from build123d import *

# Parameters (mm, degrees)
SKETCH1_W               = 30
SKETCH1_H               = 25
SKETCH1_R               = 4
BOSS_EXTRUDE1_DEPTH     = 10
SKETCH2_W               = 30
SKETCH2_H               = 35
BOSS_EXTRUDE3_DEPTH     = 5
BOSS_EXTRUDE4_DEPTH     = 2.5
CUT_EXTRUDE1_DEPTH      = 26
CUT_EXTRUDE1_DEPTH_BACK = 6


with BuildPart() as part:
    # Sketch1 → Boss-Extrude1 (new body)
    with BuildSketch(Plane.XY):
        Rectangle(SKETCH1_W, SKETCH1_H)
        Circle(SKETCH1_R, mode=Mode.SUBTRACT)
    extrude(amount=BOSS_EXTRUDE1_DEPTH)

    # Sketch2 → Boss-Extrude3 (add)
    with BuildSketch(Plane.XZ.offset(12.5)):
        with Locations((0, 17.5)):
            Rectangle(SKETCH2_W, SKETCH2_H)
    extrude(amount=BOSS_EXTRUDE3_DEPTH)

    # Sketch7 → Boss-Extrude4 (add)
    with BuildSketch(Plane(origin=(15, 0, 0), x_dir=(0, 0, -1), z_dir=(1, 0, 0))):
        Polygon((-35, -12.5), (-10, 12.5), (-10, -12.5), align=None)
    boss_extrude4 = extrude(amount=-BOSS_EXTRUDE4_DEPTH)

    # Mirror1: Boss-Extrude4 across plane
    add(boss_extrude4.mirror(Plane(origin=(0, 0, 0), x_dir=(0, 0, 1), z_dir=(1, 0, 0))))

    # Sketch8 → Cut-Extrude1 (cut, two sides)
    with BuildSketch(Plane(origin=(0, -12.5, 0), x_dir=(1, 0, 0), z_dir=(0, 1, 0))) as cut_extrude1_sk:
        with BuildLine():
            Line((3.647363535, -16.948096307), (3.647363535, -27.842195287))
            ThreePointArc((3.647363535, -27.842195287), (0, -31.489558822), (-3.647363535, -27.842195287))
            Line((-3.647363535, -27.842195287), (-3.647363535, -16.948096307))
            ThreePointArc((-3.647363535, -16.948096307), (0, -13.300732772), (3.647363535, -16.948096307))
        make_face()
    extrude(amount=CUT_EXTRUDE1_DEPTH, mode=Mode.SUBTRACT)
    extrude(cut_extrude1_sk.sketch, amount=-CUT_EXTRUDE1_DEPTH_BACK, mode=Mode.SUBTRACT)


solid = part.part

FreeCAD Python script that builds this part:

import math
import FreeCAD as App
import Part
import Sketcher

V = App.Vector
Q = App.Units.Quantity

doc = App.newDocument("Part")
body = doc.addObject("PartDesign::Body", "Body")

# Sketch on XY plane
sketch1 = body.newObject("Sketcher::SketchObject", "Sketch")
sketch1.AttachmentSupport = (doc.getObject("XY_Plane"), [""])
sketch1.MapMode = "FlatFace"
sketch1.addGeometry([
    Part.LineSegment(V(-15, 12.5, 0), V(-15, -12.5, 0)),  # 0
    Part.LineSegment(V(-15, -12.5, 0), V(15, -12.5, 0)),  # 1
    Part.LineSegment(V(15, -12.5, 0), V(15, 12.5, 0)),  # 2
    Part.LineSegment(V(15, 12.5, 0), V(-15, 12.5, 0)),  # 3
    Part.Circle(V(0, 0, 0), V(0, 0, 1), 4),  # 4
], False)
sketch1.addConstraint([
    Sketcher.Constraint("Coincident", 0, 2, 1, 1),
    Sketcher.Constraint("Coincident", 1, 2, 2, 1),
    Sketcher.Constraint("Coincident", 2, 2, 3, 1),
    Sketcher.Constraint("Coincident", 3, 2, 0, 1),
    Sketcher.Constraint("Vertical", 0),
    Sketcher.Constraint("Horizontal", 1),
    Sketcher.Constraint("Vertical", 2),
    Sketcher.Constraint("Horizontal", 3),
    Sketcher.Constraint("Coincident", 4, 3, -1, 1),
    Sketcher.Constraint("Symmetric", 0, 2, 2, 2, -1, 1),
    Sketcher.Constraint("Diameter", 4, Q("8 mm")),
    Sketcher.Constraint("DistanceX", 1, 1, 1, 2, Q("30 mm")),
    Sketcher.Constraint("DistanceY", 0, 2, 0, 1, Q("25 mm")),
])
pad1 = body.newObject("PartDesign::Pad", "Pad")
pad1.Profile = sketch1
pad1.Length = 10

# Sketch on XZ plane
sketch2 = body.newObject("Sketcher::SketchObject", "Sketch001")
sketch2.AttachmentSupport = (doc.getObject("XZ_Plane"), [""])
sketch2.MapMode = "FlatFace"
sketch2.AttachmentOffset = App.Placement(V(0, 0, 12.5), App.Rotation())
sketch2.addGeometry([
    Part.LineSegment(V(-15, 35, 0), V(-15, 0, 0)),
    Part.LineSegment(V(-15, 0, 0), V(15, 0, 0)),
    Part.LineSegment(V(15, 0, 0), V(15, 35, 0)),
    Part.LineSegment(V(15, 35, 0), V(-15, 35, 0)),
], False)
sketch2.addConstraint([
    Sketcher.Constraint("Coincident", 0, 2, 1, 1),
    Sketcher.Constraint("Coincident", 1, 2, 2, 1),
    Sketcher.Constraint("Coincident", 2, 2, 3, 1),
    Sketcher.Constraint("Coincident", 3, 2, 0, 1),
    Sketcher.Constraint("Vertical", 0),
    Sketcher.Constraint("Horizontal", 1),
    Sketcher.Constraint("Vertical", 2),
    Sketcher.Constraint("Horizontal", 3),
    Sketcher.Constraint("Symmetric", 0, 2, 1, 2, -1, 1),
    Sketcher.Constraint("DistanceX", 1, 1, 1, 2, Q("30 mm")),
    Sketcher.Constraint("DistanceY", 0, 2, 0, 1, Q("35 mm")),
])
pad2 = body.newObject("PartDesign::Pad", "Pad001")
pad2.Profile = sketch2
pad2.Length = 5

# Sketch on YZ plane
sketch3 = body.newObject("Sketcher::SketchObject", "Sketch002")
sketch3.AttachmentSupport = (doc.getObject("YZ_Plane"), [""])
sketch3.MapMode = "FlatFace"
sketch3.AttachmentOffset = App.Placement(V(0, 0, 15), App.Rotation())
sketch3.addGeometry([
    Part.LineSegment(V(12, 10, 0), V(-12, 35, 0)),
    Part.LineSegment(V(-12, 35, 0), V(-12, 10, 0)),
    Part.LineSegment(V(-12, 10, 0), V(12, 10, 0)),
], False)
sketch3.addConstraint([
    Sketcher.Constraint("Coincident", 0, 2, 1, 1),
    Sketcher.Constraint("Coincident", 1, 2, 2, 1),
    Sketcher.Constraint("Coincident", 2, 2, 0, 1),
    Sketcher.Constraint("Vertical", 1),
    Sketcher.Constraint("Horizontal", 2),
    Sketcher.Constraint("Equal", 2, 1),
    Sketcher.Constraint("DistanceX", 2, 1, 2, 2, Q("25 mm")),
    Sketcher.Constraint("DistanceY", -1, 1, 0, 2, Q("35 mm")),
    Sketcher.Constraint("DistanceX", 0, 2, -1, 1, Q("12.5 mm")),
])
pad3 = body.newObject("PartDesign::Pad", "Pad002")
pad3.Profile = sketch3
pad3.Length = 2.5
pad3.Reversed = True
doc.recompute()

mirrored = body.newObject("PartDesign::Mirrored", "Mirrored")
mirrored.Originals = [pad3]
mirrored.MirrorPlane = (doc.getObject("YZ_Plane"), [""])
body.Tip = mirrored

# Sketch on XZ plane
sketch4 = body.newObject("Sketcher::SketchObject", "Sketch003")
sketch4.AttachmentSupport = (doc.getObject("XZ_Plane"), [""])
sketch4.MapMode = "FlatFace"
sketch4.AttachmentOffset = App.Placement(V(0, 0, 12.5), App.Rotation())
sketch4.addGeometry([
    Part.LineSegment(V(3.6, 27.8, 0), V(3.6, 16.9, 0)),
    Part.ArcOfCircle(Part.Circle(V(0, 16.9, 0), V(0, 0, 1), 3.6), math.radians(180), math.radians(360)),
    Part.LineSegment(V(-3.6, 16.9, 0), V(-3.6, 27.8, 0)),
    Part.ArcOfCircle(Part.Circle(V(0, 27.8, 0), V(0, 0, 1), 3.6), math.radians(0), math.radians(180)),
], False)
sketch4.addConstraint([
    Sketcher.Constraint("Tangent", 0, 2, 1, 2),
    Sketcher.Constraint("Tangent", 1, 1, 2, 1),
    Sketcher.Constraint("Tangent", 2, 2, 3, 2),
    Sketcher.Constraint("Tangent", 3, 1, 0, 1),
    Sketcher.Constraint("Vertical", 0),
    Sketcher.Constraint("Vertical", 2),
    Sketcher.Constraint("PointOnObject", 1, 3, -2),
    Sketcher.Constraint("DistanceY", 0, 2, 0, 1, Q("10.894099 mm")),
    Sketcher.Constraint("Radius", 1, Q("3.647364 mm")),
    Sketcher.Constraint("DistanceY", -1, 1, 1, 3, Q("16.948096 mm")),
])
pocket1 = body.newObject("PartDesign::Pocket", "Pocket")
pocket1.Profile = sketch4
pocket1.Type = "ThroughAll"
pocket1.Midplane = True

doc.recompute()
